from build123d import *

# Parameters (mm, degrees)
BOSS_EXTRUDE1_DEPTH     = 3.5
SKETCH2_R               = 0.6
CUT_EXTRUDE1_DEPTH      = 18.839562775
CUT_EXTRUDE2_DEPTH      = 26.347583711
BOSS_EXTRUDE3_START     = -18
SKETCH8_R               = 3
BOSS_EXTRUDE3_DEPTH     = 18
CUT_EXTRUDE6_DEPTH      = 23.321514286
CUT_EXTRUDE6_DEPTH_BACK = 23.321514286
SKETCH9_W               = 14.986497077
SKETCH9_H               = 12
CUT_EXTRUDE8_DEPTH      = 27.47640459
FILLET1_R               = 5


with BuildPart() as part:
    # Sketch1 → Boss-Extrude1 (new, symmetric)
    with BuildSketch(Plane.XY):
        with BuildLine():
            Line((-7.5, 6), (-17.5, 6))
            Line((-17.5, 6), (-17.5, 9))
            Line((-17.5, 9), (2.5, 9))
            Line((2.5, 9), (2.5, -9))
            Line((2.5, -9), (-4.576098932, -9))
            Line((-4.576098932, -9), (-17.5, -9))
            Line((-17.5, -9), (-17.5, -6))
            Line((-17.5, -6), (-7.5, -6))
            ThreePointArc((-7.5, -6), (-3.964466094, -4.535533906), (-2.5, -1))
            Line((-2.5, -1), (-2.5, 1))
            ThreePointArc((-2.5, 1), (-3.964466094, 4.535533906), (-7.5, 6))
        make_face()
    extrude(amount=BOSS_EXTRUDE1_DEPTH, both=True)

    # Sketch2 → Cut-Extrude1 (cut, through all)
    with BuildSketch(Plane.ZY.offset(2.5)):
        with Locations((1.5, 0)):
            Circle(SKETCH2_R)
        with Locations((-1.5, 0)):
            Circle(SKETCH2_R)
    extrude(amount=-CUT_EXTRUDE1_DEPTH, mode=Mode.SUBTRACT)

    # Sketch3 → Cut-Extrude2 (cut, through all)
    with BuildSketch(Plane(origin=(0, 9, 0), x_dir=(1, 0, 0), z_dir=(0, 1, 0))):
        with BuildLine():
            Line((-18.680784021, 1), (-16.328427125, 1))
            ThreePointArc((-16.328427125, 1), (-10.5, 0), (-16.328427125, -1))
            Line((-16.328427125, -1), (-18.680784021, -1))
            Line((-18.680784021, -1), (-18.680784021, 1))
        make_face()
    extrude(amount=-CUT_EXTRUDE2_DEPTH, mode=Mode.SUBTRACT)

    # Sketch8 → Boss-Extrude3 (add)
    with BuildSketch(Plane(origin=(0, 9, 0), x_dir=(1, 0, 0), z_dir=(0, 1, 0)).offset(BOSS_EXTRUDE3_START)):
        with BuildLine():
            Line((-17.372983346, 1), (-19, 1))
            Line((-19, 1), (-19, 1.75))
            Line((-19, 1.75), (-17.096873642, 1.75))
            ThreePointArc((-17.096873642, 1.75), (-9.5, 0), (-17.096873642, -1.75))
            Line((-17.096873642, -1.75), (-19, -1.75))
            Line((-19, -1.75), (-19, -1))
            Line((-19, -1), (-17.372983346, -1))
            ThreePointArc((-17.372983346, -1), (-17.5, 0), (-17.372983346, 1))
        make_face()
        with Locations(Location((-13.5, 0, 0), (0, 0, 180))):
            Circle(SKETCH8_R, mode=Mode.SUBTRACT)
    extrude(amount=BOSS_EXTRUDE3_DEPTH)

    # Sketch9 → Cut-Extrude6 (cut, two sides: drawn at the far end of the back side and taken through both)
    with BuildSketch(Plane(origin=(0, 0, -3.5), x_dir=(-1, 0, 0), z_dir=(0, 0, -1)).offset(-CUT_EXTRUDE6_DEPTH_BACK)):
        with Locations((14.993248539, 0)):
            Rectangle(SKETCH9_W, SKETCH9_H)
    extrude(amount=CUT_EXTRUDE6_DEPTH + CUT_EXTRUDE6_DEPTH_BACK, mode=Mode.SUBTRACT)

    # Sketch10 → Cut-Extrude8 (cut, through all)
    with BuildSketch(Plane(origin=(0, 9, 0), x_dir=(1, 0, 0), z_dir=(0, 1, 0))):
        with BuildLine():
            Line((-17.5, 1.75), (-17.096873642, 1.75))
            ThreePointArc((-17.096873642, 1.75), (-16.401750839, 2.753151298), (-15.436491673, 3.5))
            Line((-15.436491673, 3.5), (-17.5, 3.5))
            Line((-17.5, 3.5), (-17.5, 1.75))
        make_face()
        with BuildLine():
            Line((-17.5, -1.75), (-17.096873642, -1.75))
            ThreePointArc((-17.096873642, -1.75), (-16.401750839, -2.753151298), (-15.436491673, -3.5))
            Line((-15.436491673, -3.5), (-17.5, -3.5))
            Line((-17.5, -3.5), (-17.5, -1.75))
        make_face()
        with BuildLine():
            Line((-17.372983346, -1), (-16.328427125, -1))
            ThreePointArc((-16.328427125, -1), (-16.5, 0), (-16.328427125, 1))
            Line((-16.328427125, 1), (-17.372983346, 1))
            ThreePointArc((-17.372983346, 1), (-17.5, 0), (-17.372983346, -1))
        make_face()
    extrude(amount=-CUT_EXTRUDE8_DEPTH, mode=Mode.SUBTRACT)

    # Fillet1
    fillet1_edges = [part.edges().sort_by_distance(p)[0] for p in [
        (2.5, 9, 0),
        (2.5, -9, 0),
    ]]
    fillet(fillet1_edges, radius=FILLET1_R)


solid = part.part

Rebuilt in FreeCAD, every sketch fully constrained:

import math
import FreeCAD as App
import Part
import Sketcher

V = App.Vector


def edges_at(feature, points):
    """Names of the edges that pass closest to the given points."""
    edges = feature.Shape.Edges
    near = lambda p: min(range(len(edges)), key=lambda i: edges[i].distToShape(Part.Vertex(*p))[0])
    return sorted({f"Edge{near(p) + 1}" for p in points})

doc = App.newDocument("Part")
body = doc.addObject("PartDesign::Body", "Body")

# Sketch on XY plane
sketch1 = body.newObject("Sketcher::SketchObject", "Sketch")
sketch1.AttachmentSupport = (doc.getObject("XY_Plane"), [""])
sketch1.MapMode = "FlatFace"
sketch1.addGeometry(Part.LineSegment(V(-17.5, 6, 0), V(-7.5, 6, 0)), False)
sketch1.addGeometry(Part.ArcOfCircle(Part.Circle(V(-7.5, 1, 0), V(0, 0, 1), 5), math.radians(0), math.radians(90)), False)
sketch1.addGeometry(Part.LineSegment(V(-2.5, 1, 0), V(-2.5, -1, 0)), False)
sketch1.addGeometry(Part.ArcOfCircle(Part.Circle(V(-7.5, -1, 0), V(0, 0, 1), 5), math.radians(-90), math.radians(0)), False)
sketch1.addGeometry(Part.LineSegment(V(-7.5, -6, 0), V(-17.5, -6, 0)), False)
sketch1.addGeometry(Part.LineSegment(V(-17.5, -6, 0), V(-17.5, -9, 0)), False)
sketch1.addGeometry(Part.LineSegment(V(-17.5, -9, 0), V(2.5, -9, 0)), False)
sketch1.addGeometry(Part.LineSegment(V(2.5, -9, 0), V(2.5, 9, 0)), False)
sketch1.addGeometry(Part.LineSegment(V(2.5, 9, 0), V(-17.5, 9, 0)), False)
sketch1.addGeometry(Part.LineSegment(V(-17.5, 9, 0), V(-17.5, 6, 0)), False)
sketch1.addConstraint(Sketcher.Constraint("Tangent", 0, 2, 1, 2))
sketch1.addConstraint(Sketcher.Constraint("Tangent", 1, 1, 2, 1))
sketch1.addConstraint(Sketcher.Constraint("Tangent", 2, 2, 3, 2))
sketch1.addConstraint(Sketcher.Constraint("Tangent", 3, 1, 4, 1))
sketch1.addConstraint(Sketcher.Constraint("Coincident", 4, 2, 5, 1))
sketch1.addConstraint(Sketcher.Constraint("Coincident", 5, 2, 6, 1))
sketch1.addConstraint(Sketcher.Constraint("Coincident", 6, 2, 7, 1))
sketch1.addConstraint(Sketcher.Constraint("Coincident", 7, 2, 8, 1))
sketch1.addConstraint(Sketcher.Constraint("Coincident", 8, 2, 9, 1))
sketch1.addConstraint(Sketcher.Constraint("Coincident", 9, 2, 0, 1))
sketch1.addConstraint(Sketcher.Constraint("Horizontal", 0))
sketch1.addConstraint(Sketcher.Constraint("Vertical", 2))
sketch1.addConstraint(Sketcher.Constraint("Horizontal", 4))
sketch1.addConstraint(Sketcher.Constraint("Vertical", 5))
sketch1.addConstraint(Sketcher.Constraint("Horizontal", 6))
sketch1.addConstraint(Sketcher.Constraint("Vertical", 7))
sketch1.addConstraint(Sketcher.Constraint("Horizontal", 8))
sketch1.addConstraint(Sketcher.Constraint("Vertical", 9))
sketch1.addConstraint(Sketcher.Constraint("Equal", 1, 3))
sketch1.addConstraint(Sketcher.Constraint("Symmetric", 5, 2, 8, 2, -1))
sketch1.addConstraint(Sketcher.Constraint("Equal", 5, 9))
sketch1.addConstraint(Sketcher.Constraint("Radius", 1, 5.0))
sketch1.addConstraint(Sketcher.Constraint("DistanceX", 0, 1, 0, 2, 10.0))
sketch1.addConstraint(Sketcher.Constraint("DistanceX", 6, 1, 6, 2, 20.0))
sketch1.addConstraint(Sketcher.Constraint("DistanceY", 2, 2, 2, 1, 2.0))
sketch1.addConstraint(Sketcher.Constraint("DistanceY", 5, 2, 5, 1, 3.0))
sketch1.addConstraint(Sketcher.Constraint("DistanceX", 1, 3, -1, 1, 7.5))
pad1 = body.newObject("PartDesign::Pad", "Pad")
pad1.Profile = sketch1
pad1.Length = 7
pad1.Midplane = True

# Sketch on YZ plane
sketch2 = body.newObject("Sketcher::SketchObject", "Sketch001")
sketch2.AttachmentSupport = (doc.getObject("YZ_Plane"), [""])
sketch2.MapMode = "FlatFace"
sketch2.AttachmentOffset = App.Placement(V(0, 0, -2.5), App.Rotation())
sketch2.addGeometry(Part.Circle(V(0, 1.5, 0), V(0, 0, 1), 0.6), False)
sketch2.addGeometry(Part.Circle(V(0, -1.5, 0), V(0, 0, 1), 0.6), False)
sketch2.addConstraint(Sketcher.Constraint("Equal", 0, 1))
sketch2.addConstraint(Sketcher.Constraint("Symmetric", 0, 3, 1, 3, -1, 1))
sketch2.addConstraint(Sketcher.Constraint("PointOnObject", 0, 3, -2))
sketch2.addConstraint(Sketcher.Constraint("Diameter", 0, 1.2))
sketch2.addConstraint(Sketcher.Constraint("DistanceY", 1, 3, 0, 3, 3.0))
pocket1 = body.newObject("PartDesign::Pocket", "Pocket")
pocket1.Profile = sketch2
pocket1.Type = "ThroughAll"
pocket1.Reversed = True

# Sketch on XZ plane
sketch3 = body.newObject("Sketcher::SketchObject", "Sketch002")
sketch3.AttachmentSupport = (doc.getObject("XZ_Plane"), [""])
sketch3.MapMode = "FlatFace"
sketch3.AttachmentOffset = App.Placement(V(0, 0, -9), App.Rotation())
sketch3.addGeometry(Part.LineSegment(V(-16.328427, -1, 0), V(-18.680784, -1, 0)), False)
sketch3.addGeometry(Part.LineSegment(V(-18.680784, -1, 0), V(-18.680784, 1, 0)), False)
sketch3.addGeometry(Part.LineSegment(V(-18.680784, 1, 0), V(-16.328427, 1, 0)), False)
sketch3.addGeometry(Part.ArcOfCircle(Part.Circle(V(-13.5, 0, 0), V(0, 0, 1), 3), math.radians(-160.528779), math.radians(160.528779)), False)
sketch3.addConstraint(Sketcher.Constraint("Coincident", 0, 2, 1, 1))
sketch3.addConstraint(Sketcher.Constraint("Coincident", 1, 2, 2, 1))
sketch3.addConstraint(Sketcher.Constraint("Coincident", 2, 2, 3, 2))
sketch3.addConstraint(Sketcher.Constraint("Coincident", 3, 1, 0, 1))
sketch3.addConstraint(Sketcher.Constraint("Horizontal", 0))
sketch3.addConstraint(Sketcher.Constraint("Vertical", 1))
sketch3.addConstraint(Sketcher.Constraint("Horizontal", 2))
sketch3.addConstraint(Sketcher.Constraint("Symmetric", 2, 2, 3, 1, -1))
sketch3.addConstraint(Sketcher.Constraint("Radius", 3, 3.0))
sketch3.addConstraint(Sketcher.Constraint("DistanceY", 1, 1, 1, 2, 2.0))
sketch3.addConstraint(Sketcher.Constraint("DistanceX", 3, 3, -1, 1, 13.5))
sketch3.addConstraint(Sketcher.Constraint("DistanceX", 0, 2, 0, 1, 2.352357))
pocket2 = body.newObject("PartDesign::Pocket", "Pocket001")
pocket2.Profile = sketch3
pocket2.Type = "ThroughAll"
pocket2.Reversed = True

# Sketch on XZ plane
sketch4 = body.newObject("Sketcher::SketchObject", "Sketch003")
sketch4.AttachmentSupport = (doc.getObject("XZ_Plane"), [""])
sketch4.MapMode = "FlatFace"
sketch4.AttachmentOffset = App.Placement(V(0, 0, 9), App.Rotation())
sketch4.addGeometry(Part.LineSegment(V(-19, -1, 0), V(-17.372983, -1, 0)), False)
sketch4.addGeometry(Part.ArcOfCircle(Part.Circle(V(-13.5, 0, 0), V(0, 0, 1), 4), math.radians(165.522488), math.radians(194.477512)), False)
sketch4.addGeometry(Part.LineSegment(V(-17.372983, 1, 0), V(-19, 1, 0)), False)
sketch4.addGeometry(Part.LineSegment(V(-19, 1, 0), V(-19, 1.75, 0)), False)
sketch4.addGeometry(Part.LineSegment(V(-19, 1.75, 0), V(-17.096874, 1.75, 0)), False)
sketch4.addGeometry(Part.ArcOfCircle(Part.Circle(V(-13.5, 0, 0), V(0, 0, 1), 4), math.radians(-154.05552), math.radians(154.05552)), False)
sketch4.addGeometry(Part.LineSegment(V(-17.096874, -1.75, 0), V(-19, -1.75, 0)), False)
sketch4.addGeometry(Part.LineSegment(V(-19, -1.75, 0), V(-19, -1, 0)), False)
sketch4.addGeometry(Part.Circle(V(-13.5, 0, 0), V(0, 0, 1), 3), False)
sketch4.addConstraint(Sketcher.Constraint("Coincident", 0, 2, 1, 2))
sketch4.addConstraint(Sketcher.Constraint("Coincident", 1, 1, 2, 1))
sketch4.addConstraint(Sketcher.Constraint("Coincident", 2, 2, 3, 1))
sketch4.addConstraint(Sketcher.Constraint("Coincident", 3, 2, 4, 1))
sketch4.addConstraint(Sketcher.Constraint("Coincident", 4, 2, 5, 2))
sketch4.addConstraint(Sketcher.Constraint("Coincident", 5, 1, 6, 1))
sketch4.addConstraint(Sketcher.Constraint("Coincident", 6, 2, 7, 1))
sketch4.addConstraint(Sketcher.Constraint("Coincident", 7, 2, 0, 1))
sketch4.addConstraint(Sketcher.Constraint("Horizontal", 0))
sketch4.addConstraint(Sketcher.Constraint("Horizontal", 2))
sketch4.addConstraint(Sketcher.Constraint("Vertical", 3))
sketch4.addConstraint(Sketcher.Constraint("Horizontal", 4))
sketch4.addConstraint(Sketcher.Constraint("Horizontal", 6))
sketch4.addConstraint(Sketcher.Constraint("Vertical", 7))
sketch4.addConstraint(Sketcher.Constraint("Coincident", 5, 3, 1, 3))
sketch4.addConstraint(Sketcher.Constraint("Coincident", 8, 3, 1, 3))
sketch4.addConstraint(Sketcher.Constraint("Equal", 1, 5))
sketch4.addConstraint(Sketcher.Constraint("Symmetric", 0, 2, 1, 1, -1))
sketch4.addConstraint(Sketcher.Constraint("Symmetric", 3, 2, 6, 2, -1))
sketch4.addConstraint(Sketcher.Constraint("Diameter", 8, 6.0))
sketch4.addConstraint(Sketcher.Constraint("Radius", 1, 4.0))
sketch4.addConstraint(Sketcher.Constraint("DistanceY", 0, 2, -1, 1, 1.0))
sketch4.addConstraint(Sketcher.Constraint("DistanceX", 2, 2, -1, 1, 19.0))
sketch4.addConstraint(Sketcher.Constraint("DistanceY", 3, 1, 3, 2, 0.75))
sketch4.addConstraint(Sketcher.Constraint("DistanceX", 1, 3, -1, 1, 13.5))
pad2 = body.newObject("PartDesign::Pad", "Pad001")
pad2.Profile = sketch4
pad2.Length = 18
pad2.Reversed = True

# Sketch on XY plane
sketch5 = body.newObject("Sketcher::SketchObject", "Sketch004")
sketch5.AttachmentSupport = (doc.getObject("XY_Plane"), [""])
sketch5.MapMode = "FlatFace"
sketch5.AttachmentOffset = App.Placement(V(0, 0, -3.5), App.Rotation())
sketch5.addGeometry(Part.LineSegment(V(-7.5, 6, 0), V(-7.5, -6, 0)), False)
sketch5.addGeometry(Part.LineSegment(V(-7.5, -6, 0), V(-22.486497, -6, 0)), False)
sketch5.addGeometry(Part.LineSegment(V(-22.486497, -6, 0), V(-22.486497, 6, 0)), False)
sketch5.addGeometry(Part.LineSegment(V(-22.486497, 6, 0), V(-7.5, 6, 0)), False)
sketch5.addConstraint(Sketcher.Constraint("Coincident", 0, 2, 1, 1))
sketch5.addConstraint(Sketcher.Constraint("Coincident", 1, 2, 2, 1))
sketch5.addConstraint(Sketcher.Constraint("Coincident", 2, 2, 3, 1))
sketch5.addConstraint(Sketcher.Constraint("Coincident", 3, 2, 0, 1))
sketch5.addConstraint(Sketcher.Constraint("Vertical", 0))
sketch5.addConstraint(Sketcher.Constraint("Horizontal", 1))
sketch5.addConstraint(Sketcher.Constraint("Vertical", 2))
sketch5.addConstraint(Sketcher.Constraint("Horizontal", 3))
sketch5.addConstraint(Sketcher.Constraint("DistanceY", 0, 2, 0, 1, 12.0))
sketch5.addConstraint(Sketcher.Constraint("DistanceY", 0, 2, -1, 1, 6.0))
sketch5.addConstraint(Sketcher.Constraint("DistanceX", 0, 2, -1, 1, 7.5))
sketch5.addConstraint(Sketcher.Constraint("DistanceX", 1, 2, 1, 1, 14.986497))
pocket3 = body.newObject("PartDesign::Pocket", "Pocket002")
pocket3.Profile = sketch5
pocket3.Type = "ThroughAll"
pocket3.Midplane = True

# Sketch on XZ plane
sketch6 = body.newObject("Sketcher::SketchObject", "Sketch005")
sketch6.AttachmentSupport = (doc.getObject("XZ_Plane"), [""])
sketch6.MapMode = "FlatFace"
sketch6.AttachmentOffset = App.Placement(V(0, 0, -9), App.Rotation())
sketch6.addGeometry(Part.LineSegment(V(-17.5, -1.75, 0), V(-17.096874, -1.75, 0)), False)
sketch6.addGeometry(Part.ArcOfCircle(Part.Circle(V(-13.5, 0, 0), V(0, 0, 1), 4), math.radians(-154.05552), math.radians(-118.955024)), False)
sketch6.addGeometry(Part.LineSegment(V(-15.436492, -3.5, 0), V(-17.5, -3.5, 0)), False)
sketch6.addGeometry(Part.LineSegment(V(-17.5, -3.5, 0), V(-17.5, -1.75, 0)), False)
sketch6.addGeometry(Part.LineSegment(V(-17.096874, 1.75, 0), V(-17.5, 1.75, 0)), False)
sketch6.addGeometry(Part.LineSegment(V(-17.5, 1.75, 0), V(-17.5, 3.5, 0)), False)
sketch6.addGeometry(Part.LineSegment(V(-17.5, 3.5, 0), V(-15.436492, 3.5, 0)), False)
sketch6.addGeometry(Part.ArcOfCircle(Part.Circle(V(-13.5, 0, 0), V(0, 0, 1), 4), math.radians(118.955024), math.radians(154.05552)), False)
sketch6.addGeometry(Part.LineSegment(V(-17.372983, 1, 0), V(-16.328427, 1, 0)), False)
sketch6.addGeometry(Part.ArcOfCircle(Part.Circle(V(-13.5, 0, 0), V(0, 0, 1), 3), math.radians(160.528779), math.radians(199.471221)), False)
sketch6.addGeometry(Part.LineSegment(V(-16.328427, -1, 0), V(-17.372983, -1, 0)), False)
sketch6.addGeometry(Part.ArcOfCircle(Part.Circle(V(-13.5, 0, 0), V(0, 0, 1), 4), math.radians(165.522488), math.radians(194.477512)), False)
sketch6.addConstraint(Sketcher.Constraint("Coincident", 0, 2, 1, 1))
sketch6.addConstraint(Sketcher.Constraint("Coincident", 1, 2, 2, 1))
sketch6.addConstraint(Sketcher.Constraint("Coincident", 2, 2, 3, 1))
sketch6.addConstraint(Sketcher.Constraint("Coincident", 3, 2, 0, 1))
sketch6.addConstraint(Sketcher.Constraint("Coincident", 4, 2, 5, 1))
sketch6.addConstraint(Sketcher.Constraint("Coincident", 5, 2, 6, 1))
sketch6.addConstraint(Sketcher.Constraint("Coincident", 6, 2, 7, 1))
sketch6.addConstraint(Sketcher.Constraint("Coincident", 7, 2, 4, 1))
sketch6.addConstraint(Sketcher.Constraint("Coincident", 8, 2, 9, 1))
sketch6.addConstraint(Sketcher.Constraint("Coincident", 9, 2, 10, 1))
sketch6.addConstraint(Sketcher.Constraint("Coincident", 10, 2, 11, 2))
sketch6.addConstraint(Sketcher.Constraint("Coincident", 11, 1, 8, 1))
sketch6.addConstraint(Sketcher.Constraint("Horizontal", 0))
sketch6.addConstraint(Sketcher.Constraint("Horizontal", 2))
sketch6.addConstraint(Sketcher.Constraint("Vertical", 3))
sketch6.addConstraint(Sketcher.Constraint("Horizontal", 4))
sketch6.addConstraint(Sketcher.Constraint("Vertical", 5))
sketch6.addConstraint(Sketcher.Constraint("Horizontal", 6))
sketch6.addConstraint(Sketcher.Constraint("Horizontal", 8))
sketch6.addConstraint(Sketcher.Constraint("Horizontal", 10))
sketch6.addConstraint(Sketcher.Constraint("Coincident", 7, 3, 1, 3))
sketch6.addConstraint(Sketcher.Constraint("Coincident", 9, 3, 1, 3))
sketch6.addConstraint(Sketcher.Constraint("Coincident", 11, 3, 1, 3))
sketch6.addConstraint(Sketcher.Constraint("Equal", 1, 7))
sketch6.addConstraint(Sketcher.Constraint("Equal", 7, 11))
sketch6.addConstraint(Sketcher.Constraint("Symmetric", 3, 2, 4, 2, -1))
sketch6.addConstraint(Sketcher.Constraint("Symmetric", 1, 2, 6, 2, -1))
sketch6.addConstraint(Sketcher.Constraint("Vertical", 8, 2, 9, 2))
sketch6.addConstraint(Sketcher.Constraint("Radius", 1, 4.0))
sketch6.addConstraint(Sketcher.Constraint("Radius", 9, 3.0))
sketch6.addConstraint(Sketcher.Constraint("DistanceY", -1, 1, 8, 2, 1.0))
sketch6.addConstraint(Sketcher.Constraint("DistanceX", 2, 2, 1, 3, 4.0))
sketch6.addConstraint(Sketcher.Constraint("DistanceY", 3, 1, 3, 2, 1.75))
sketch6.addConstraint(Sketcher.Constraint("DistanceX", 1, 3, -1, 1, 13.5))
sketch6.addConstraint(Sketcher.Constraint("DistanceY", 1, 2, -1, 1, 3.5))
pocket4 = body.newObject("PartDesign::Pocket", "Pocket003")
pocket4.Profile = sketch6
pocket4.Type = "ThroughAll"
pocket4.Reversed = True
doc.recompute()

fillet = body.newObject("PartDesign::Fillet", "Fillet")
fillet.Base = (pocket4, edges_at(pocket4, [(2.5, 9, 0), (2.5, -9, 0)]))
fillet.Radius = 5

doc.recompute()
